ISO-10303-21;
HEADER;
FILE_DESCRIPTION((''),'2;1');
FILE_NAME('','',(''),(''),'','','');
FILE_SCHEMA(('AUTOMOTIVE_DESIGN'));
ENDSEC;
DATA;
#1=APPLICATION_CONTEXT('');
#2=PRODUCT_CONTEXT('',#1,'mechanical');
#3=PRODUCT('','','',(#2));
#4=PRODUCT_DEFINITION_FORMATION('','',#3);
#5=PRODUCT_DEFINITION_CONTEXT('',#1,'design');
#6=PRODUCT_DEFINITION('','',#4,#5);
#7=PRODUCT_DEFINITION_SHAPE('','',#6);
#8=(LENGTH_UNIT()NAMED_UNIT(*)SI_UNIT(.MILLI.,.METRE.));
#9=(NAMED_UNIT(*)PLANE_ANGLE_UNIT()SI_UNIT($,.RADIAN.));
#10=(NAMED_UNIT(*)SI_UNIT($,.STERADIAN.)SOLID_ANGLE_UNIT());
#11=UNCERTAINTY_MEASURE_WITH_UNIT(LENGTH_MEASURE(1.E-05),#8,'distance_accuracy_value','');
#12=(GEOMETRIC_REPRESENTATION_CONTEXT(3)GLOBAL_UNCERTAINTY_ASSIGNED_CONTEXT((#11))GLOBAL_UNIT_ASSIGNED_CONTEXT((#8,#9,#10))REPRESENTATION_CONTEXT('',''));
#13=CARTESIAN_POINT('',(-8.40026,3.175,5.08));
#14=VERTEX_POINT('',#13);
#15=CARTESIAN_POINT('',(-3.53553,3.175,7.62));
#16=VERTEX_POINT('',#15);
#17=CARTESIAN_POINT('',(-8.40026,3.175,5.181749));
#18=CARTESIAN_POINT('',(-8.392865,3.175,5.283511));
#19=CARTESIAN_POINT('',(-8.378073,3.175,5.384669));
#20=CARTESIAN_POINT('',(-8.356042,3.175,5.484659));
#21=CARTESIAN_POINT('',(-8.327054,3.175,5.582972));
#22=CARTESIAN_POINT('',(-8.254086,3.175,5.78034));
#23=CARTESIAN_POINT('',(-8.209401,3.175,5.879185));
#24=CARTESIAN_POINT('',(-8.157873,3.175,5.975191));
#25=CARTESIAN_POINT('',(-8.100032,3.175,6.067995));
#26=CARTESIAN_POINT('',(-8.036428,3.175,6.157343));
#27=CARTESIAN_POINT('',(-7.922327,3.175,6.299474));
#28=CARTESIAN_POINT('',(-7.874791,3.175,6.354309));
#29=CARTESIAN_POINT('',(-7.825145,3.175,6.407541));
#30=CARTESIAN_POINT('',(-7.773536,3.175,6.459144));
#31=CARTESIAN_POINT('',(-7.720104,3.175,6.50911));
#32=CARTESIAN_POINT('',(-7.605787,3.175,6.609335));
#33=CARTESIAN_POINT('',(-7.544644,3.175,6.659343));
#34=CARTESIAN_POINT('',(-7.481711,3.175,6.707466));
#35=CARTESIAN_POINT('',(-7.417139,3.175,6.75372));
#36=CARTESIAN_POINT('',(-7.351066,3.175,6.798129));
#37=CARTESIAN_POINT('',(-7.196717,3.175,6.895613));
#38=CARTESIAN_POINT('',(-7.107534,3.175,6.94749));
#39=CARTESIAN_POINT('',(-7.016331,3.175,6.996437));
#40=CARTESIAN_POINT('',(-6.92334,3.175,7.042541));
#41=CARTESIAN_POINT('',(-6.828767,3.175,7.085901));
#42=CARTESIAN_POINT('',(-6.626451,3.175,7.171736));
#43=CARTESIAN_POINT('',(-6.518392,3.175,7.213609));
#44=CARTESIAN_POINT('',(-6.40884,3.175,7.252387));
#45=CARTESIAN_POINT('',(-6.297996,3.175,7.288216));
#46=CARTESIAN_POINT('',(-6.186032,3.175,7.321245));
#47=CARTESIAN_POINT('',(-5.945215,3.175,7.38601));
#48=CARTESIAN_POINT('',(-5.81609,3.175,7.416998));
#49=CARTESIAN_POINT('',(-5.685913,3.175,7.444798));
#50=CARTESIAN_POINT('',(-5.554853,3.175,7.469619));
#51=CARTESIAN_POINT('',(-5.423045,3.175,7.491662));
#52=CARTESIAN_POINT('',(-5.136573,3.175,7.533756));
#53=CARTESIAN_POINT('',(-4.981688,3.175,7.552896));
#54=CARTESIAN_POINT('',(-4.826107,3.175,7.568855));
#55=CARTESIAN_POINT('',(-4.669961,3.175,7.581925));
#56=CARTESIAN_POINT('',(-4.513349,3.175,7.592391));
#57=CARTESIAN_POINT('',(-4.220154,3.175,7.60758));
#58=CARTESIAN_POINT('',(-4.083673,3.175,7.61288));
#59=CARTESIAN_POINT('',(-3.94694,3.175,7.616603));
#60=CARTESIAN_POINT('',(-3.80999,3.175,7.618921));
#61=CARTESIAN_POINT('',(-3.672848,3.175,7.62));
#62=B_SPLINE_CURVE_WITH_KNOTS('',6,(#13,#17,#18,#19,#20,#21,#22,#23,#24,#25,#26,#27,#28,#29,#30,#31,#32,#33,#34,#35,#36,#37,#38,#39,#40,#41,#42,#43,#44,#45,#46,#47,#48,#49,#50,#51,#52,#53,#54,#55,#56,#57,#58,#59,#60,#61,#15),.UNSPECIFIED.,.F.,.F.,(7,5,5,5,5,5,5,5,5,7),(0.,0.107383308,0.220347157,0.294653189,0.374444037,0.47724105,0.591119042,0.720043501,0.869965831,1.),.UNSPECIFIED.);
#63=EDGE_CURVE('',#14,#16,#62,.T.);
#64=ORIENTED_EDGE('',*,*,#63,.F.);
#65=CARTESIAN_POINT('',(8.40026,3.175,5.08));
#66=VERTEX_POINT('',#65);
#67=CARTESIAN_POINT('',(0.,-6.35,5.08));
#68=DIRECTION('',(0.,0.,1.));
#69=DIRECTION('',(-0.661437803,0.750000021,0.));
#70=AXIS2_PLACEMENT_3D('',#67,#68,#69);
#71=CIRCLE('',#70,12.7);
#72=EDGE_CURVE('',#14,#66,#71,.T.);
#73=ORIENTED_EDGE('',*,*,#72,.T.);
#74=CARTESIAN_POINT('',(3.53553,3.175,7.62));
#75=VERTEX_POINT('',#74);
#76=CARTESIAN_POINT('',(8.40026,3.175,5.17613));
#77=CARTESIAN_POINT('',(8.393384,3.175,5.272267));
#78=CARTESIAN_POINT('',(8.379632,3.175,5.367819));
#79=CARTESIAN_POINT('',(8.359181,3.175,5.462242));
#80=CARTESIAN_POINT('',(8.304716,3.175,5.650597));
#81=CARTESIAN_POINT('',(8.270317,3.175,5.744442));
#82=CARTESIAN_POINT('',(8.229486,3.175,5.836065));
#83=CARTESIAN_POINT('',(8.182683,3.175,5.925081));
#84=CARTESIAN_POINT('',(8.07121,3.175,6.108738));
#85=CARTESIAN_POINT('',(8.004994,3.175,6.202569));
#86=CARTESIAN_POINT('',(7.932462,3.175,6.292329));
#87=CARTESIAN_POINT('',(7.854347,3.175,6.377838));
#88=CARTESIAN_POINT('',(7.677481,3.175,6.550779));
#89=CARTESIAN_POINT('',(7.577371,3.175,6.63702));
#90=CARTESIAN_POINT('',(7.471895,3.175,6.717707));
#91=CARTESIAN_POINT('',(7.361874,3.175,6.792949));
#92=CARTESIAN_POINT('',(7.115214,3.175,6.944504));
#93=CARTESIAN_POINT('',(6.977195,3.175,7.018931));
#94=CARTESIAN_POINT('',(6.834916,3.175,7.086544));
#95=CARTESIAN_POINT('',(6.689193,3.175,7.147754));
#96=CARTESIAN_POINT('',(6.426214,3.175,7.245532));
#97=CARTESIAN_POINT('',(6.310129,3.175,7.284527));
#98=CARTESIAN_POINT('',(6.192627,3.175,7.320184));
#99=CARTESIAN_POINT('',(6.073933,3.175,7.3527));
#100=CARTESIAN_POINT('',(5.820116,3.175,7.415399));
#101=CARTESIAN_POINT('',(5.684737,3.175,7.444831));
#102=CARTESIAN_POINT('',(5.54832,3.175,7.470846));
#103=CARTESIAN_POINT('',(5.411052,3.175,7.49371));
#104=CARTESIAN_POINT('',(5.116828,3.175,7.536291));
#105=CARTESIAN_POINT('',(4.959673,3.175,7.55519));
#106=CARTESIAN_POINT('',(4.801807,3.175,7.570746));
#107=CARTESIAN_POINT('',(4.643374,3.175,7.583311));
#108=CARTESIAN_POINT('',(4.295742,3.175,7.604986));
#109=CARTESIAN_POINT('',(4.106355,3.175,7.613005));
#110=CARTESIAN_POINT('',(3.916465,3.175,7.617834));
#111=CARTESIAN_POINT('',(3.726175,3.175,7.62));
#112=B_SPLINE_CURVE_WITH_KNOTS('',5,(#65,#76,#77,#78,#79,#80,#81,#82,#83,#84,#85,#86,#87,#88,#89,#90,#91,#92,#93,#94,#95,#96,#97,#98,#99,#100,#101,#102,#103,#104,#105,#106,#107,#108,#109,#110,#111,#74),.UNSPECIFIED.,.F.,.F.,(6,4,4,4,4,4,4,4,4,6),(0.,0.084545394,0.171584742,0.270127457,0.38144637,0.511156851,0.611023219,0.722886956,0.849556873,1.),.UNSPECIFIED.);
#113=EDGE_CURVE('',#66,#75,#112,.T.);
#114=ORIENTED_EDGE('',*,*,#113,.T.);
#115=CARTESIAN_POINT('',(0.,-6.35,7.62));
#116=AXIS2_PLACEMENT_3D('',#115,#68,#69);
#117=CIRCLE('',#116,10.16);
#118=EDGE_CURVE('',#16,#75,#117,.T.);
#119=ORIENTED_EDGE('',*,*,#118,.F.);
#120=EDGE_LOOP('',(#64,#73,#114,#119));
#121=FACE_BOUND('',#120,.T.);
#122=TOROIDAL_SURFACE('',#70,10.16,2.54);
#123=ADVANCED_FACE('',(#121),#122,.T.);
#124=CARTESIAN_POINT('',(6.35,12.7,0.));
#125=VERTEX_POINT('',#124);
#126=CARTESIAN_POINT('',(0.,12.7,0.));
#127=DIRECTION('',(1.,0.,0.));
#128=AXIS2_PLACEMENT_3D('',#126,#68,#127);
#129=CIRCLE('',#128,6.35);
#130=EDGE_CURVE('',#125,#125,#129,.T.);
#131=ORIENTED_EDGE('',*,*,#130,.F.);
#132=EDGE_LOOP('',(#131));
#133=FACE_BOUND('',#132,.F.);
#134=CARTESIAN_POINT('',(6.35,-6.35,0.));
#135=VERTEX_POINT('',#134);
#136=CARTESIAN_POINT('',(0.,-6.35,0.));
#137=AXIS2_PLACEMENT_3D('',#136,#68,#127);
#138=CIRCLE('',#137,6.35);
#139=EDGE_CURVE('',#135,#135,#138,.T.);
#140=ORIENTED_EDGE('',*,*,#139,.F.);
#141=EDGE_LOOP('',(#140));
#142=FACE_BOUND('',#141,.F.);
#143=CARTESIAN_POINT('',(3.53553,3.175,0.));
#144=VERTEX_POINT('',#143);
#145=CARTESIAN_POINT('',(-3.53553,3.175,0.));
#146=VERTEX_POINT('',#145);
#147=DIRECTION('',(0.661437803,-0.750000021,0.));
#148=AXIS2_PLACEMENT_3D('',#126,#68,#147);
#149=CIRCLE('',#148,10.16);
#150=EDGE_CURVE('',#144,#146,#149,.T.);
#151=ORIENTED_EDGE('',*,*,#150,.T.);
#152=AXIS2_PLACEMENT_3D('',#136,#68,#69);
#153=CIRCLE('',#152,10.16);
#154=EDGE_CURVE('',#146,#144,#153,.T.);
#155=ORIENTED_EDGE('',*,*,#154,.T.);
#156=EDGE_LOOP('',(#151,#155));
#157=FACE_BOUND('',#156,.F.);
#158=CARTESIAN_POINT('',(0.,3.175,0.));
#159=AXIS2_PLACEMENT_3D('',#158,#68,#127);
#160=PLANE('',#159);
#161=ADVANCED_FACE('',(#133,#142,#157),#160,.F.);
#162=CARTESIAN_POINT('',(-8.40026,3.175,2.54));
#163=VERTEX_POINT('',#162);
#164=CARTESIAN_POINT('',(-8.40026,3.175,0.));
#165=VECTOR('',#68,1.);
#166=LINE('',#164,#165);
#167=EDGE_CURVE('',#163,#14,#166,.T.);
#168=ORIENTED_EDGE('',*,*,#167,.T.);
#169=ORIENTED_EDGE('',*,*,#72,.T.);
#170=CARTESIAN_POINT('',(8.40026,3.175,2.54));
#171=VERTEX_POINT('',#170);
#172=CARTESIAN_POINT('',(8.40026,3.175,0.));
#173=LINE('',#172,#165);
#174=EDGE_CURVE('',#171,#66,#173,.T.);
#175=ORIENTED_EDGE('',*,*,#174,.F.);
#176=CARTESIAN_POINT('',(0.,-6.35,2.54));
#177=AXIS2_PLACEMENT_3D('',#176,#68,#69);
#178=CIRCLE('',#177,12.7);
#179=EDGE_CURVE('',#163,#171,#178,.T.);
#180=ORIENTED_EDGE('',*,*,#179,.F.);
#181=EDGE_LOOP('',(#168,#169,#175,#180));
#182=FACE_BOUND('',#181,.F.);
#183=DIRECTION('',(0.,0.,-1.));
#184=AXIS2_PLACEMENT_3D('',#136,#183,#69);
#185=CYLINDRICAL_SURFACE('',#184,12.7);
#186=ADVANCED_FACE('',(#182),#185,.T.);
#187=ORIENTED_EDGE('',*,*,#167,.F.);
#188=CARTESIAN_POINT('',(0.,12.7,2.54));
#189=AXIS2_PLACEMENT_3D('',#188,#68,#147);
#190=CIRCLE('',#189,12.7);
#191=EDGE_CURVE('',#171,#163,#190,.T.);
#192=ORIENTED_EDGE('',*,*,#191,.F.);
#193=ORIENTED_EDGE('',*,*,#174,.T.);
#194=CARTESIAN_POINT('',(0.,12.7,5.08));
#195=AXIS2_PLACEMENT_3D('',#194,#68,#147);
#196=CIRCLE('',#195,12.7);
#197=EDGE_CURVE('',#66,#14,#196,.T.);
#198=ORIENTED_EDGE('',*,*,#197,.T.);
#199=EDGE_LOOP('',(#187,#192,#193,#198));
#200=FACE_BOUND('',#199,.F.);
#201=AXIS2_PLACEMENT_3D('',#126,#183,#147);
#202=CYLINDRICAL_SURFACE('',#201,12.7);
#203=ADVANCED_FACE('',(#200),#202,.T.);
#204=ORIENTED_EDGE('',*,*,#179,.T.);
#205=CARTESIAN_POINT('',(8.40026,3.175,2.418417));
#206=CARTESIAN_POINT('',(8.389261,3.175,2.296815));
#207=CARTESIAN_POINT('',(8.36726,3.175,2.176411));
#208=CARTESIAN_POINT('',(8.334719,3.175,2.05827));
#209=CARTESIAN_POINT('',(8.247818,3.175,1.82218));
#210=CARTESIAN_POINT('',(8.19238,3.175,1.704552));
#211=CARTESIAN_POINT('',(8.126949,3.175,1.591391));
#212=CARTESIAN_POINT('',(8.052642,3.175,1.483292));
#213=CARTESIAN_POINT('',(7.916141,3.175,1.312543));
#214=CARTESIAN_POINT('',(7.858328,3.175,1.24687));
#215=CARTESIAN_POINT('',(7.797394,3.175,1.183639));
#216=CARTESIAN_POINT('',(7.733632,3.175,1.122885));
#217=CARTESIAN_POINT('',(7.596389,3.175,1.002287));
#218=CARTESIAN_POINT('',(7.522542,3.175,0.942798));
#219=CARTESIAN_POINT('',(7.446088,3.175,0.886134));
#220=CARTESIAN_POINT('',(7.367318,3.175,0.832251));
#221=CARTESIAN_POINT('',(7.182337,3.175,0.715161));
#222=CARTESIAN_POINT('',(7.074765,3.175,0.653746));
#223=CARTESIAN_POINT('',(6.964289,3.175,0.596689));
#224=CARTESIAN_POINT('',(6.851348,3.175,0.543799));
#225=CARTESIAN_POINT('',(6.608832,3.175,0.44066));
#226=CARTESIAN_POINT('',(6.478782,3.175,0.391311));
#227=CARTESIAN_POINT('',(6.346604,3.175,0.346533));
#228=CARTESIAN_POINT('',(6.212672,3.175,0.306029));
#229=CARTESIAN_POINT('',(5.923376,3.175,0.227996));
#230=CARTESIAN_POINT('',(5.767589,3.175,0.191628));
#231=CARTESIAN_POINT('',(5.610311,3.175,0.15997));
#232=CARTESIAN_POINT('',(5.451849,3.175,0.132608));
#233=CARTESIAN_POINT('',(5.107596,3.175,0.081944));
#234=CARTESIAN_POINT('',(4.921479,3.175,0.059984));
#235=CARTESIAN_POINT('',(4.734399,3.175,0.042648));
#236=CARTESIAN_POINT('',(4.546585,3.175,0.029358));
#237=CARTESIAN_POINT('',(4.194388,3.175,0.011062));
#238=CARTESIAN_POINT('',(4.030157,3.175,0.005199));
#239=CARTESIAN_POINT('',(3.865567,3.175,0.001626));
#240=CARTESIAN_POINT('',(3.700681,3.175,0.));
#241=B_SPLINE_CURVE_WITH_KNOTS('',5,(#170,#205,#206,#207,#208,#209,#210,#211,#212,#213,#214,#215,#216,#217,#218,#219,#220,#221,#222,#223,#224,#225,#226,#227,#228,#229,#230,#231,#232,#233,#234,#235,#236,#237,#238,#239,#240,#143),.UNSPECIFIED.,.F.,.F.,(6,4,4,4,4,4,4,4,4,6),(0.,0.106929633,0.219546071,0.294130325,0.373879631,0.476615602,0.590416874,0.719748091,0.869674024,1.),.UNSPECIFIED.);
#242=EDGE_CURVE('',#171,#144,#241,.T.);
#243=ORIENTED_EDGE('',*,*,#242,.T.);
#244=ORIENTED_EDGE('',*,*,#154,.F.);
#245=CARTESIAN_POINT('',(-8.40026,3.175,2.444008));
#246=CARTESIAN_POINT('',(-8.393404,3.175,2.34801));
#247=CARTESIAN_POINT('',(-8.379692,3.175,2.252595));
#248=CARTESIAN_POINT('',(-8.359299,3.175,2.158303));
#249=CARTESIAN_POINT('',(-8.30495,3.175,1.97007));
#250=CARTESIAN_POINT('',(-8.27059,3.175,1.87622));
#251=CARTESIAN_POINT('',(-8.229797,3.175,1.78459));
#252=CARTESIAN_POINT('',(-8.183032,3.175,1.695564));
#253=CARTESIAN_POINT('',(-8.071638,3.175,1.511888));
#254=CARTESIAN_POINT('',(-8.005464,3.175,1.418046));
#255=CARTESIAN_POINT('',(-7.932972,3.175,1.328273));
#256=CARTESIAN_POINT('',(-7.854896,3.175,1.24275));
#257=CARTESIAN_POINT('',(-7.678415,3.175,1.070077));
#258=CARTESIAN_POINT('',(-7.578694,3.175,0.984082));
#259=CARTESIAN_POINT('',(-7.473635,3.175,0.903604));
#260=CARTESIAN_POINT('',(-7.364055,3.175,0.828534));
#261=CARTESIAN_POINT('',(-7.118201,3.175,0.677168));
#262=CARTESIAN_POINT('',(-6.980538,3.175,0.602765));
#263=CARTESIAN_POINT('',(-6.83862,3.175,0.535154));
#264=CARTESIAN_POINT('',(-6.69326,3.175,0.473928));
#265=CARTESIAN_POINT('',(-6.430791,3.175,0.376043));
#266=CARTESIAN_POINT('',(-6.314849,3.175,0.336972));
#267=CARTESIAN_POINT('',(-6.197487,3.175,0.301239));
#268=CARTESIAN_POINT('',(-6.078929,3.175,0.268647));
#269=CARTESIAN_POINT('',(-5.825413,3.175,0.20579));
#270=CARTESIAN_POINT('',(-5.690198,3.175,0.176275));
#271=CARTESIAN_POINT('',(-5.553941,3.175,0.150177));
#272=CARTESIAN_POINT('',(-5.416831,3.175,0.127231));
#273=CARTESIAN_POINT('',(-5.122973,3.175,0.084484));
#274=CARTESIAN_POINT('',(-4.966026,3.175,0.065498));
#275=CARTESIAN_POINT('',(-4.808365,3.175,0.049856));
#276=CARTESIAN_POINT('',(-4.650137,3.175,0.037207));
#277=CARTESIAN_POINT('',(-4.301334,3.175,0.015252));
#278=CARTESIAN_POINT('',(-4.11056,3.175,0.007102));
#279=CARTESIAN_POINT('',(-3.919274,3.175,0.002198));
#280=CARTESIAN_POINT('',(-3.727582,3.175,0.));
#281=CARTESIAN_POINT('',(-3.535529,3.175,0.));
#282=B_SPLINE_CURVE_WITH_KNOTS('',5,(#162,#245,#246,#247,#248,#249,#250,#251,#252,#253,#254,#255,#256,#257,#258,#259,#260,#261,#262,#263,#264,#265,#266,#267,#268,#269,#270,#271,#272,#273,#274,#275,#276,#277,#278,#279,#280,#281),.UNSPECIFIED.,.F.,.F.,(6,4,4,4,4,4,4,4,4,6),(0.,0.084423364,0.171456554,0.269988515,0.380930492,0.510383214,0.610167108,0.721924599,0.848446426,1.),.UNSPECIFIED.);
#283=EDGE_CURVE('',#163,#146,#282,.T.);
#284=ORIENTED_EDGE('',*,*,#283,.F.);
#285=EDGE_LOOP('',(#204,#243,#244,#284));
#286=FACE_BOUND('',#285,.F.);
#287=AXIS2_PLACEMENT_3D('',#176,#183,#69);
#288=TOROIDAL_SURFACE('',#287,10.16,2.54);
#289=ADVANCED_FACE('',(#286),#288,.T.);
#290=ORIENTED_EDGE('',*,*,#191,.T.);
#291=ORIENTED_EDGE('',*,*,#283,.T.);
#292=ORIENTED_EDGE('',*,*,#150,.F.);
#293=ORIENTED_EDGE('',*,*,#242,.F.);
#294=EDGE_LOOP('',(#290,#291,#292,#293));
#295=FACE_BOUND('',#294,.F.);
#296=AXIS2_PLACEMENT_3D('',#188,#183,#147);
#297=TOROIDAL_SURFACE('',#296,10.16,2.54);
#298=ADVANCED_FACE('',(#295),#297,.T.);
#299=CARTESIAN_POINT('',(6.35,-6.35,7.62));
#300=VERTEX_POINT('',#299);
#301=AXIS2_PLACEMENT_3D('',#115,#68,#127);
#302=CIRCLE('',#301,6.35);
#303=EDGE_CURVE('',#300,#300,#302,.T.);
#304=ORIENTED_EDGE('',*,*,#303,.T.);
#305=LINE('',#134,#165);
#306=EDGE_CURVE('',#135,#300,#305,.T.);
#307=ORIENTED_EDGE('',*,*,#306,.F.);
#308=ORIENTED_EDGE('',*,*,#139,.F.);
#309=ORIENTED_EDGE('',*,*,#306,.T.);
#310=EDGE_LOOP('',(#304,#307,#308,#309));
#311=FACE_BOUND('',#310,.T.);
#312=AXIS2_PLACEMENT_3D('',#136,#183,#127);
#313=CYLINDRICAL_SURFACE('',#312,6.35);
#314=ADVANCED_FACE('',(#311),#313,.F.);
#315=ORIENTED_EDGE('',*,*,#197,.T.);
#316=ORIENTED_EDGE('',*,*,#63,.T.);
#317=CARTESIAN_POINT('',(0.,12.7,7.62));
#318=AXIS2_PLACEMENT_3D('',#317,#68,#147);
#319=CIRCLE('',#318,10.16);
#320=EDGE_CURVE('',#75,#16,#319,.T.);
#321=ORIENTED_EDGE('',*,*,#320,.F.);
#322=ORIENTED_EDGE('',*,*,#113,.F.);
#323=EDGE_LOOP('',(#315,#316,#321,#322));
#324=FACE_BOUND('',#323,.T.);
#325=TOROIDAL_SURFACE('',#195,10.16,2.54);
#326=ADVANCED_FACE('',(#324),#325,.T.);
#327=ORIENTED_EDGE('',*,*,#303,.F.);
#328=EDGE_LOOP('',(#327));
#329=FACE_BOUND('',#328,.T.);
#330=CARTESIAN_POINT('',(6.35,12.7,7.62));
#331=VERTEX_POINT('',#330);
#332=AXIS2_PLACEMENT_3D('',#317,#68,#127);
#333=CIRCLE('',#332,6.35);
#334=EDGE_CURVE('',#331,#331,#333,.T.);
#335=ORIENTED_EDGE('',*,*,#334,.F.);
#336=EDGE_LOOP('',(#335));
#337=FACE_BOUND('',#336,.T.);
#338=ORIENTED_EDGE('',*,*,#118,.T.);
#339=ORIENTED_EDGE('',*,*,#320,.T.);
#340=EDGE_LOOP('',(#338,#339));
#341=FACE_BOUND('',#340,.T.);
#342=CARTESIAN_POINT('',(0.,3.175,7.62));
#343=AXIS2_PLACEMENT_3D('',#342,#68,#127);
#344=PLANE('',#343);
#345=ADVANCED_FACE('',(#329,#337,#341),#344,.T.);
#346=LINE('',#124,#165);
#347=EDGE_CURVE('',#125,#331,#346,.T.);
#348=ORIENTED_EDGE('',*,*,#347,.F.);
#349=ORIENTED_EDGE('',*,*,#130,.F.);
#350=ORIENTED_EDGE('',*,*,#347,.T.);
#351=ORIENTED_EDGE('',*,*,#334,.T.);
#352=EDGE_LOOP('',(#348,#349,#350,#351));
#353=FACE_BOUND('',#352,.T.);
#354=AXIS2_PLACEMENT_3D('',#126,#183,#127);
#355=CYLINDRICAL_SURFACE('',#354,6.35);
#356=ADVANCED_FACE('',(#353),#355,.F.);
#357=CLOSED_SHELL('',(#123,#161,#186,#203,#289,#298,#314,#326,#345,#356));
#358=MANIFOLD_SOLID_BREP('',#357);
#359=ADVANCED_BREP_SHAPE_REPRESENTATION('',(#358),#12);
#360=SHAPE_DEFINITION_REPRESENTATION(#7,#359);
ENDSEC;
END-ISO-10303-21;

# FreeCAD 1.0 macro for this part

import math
import FreeCAD as App
import Part
import Sketcher
Q = App.Units.Quantity


def edges_at(feature, points):
    """Names of the edges that pass closest to the given points."""
    edges = feature.Shape.Edges
    near = lambda p: min(range(len(edges)), key=lambda i: edges[i].distToShape(Part.Vertex(*p))[0])
    return sorted({f"Edge{near(p) + 1}" for p in points})

doc = App.newDocument("Part")
body = doc.addObject("PartDesign::Body", "Body")

# Sketch on XY plane
sketch1 = doc.addObject("Sketcher::SketchObject", "Sketch")
body.addObject(sketch1)
sketch1.AttachmentSupport = (doc.XY_Plane, [""])
sketch1.MapMode = "FlatFace"
sketch1.addGeometry(Part.ArcOfCircle(Part.Circle(App.Vector(0, -6, 0), App.Vector(0, 0, 1), 13), math.radians(131), math.radians(409)), False)
sketch1.addGeometry(Part.ArcOfCircle(Part.Circle(App.Vector(0, 13, 0), App.Vector(0, 0, 1), 13), math.radians(-49), math.radians(229)), False)
sketch1.addGeometry(Part.Circle(App.Vector(0, -6, 0), App.Vector(0, 0, 1), 6), False)
sketch1.addGeometry(Part.Circle(App.Vector(0, 13, 0), App.Vector(0, 0, 1), 6), False)
sketch1.addConstraint(Sketcher.Constraint("Coincident", 0, 1, 1, 2))
sketch1.addConstraint(Sketcher.Constraint("Coincident", 1, 1, 0, 2))
sketch1.addConstraint(Sketcher.Constraint("Coincident", 2, 3, 0, 3))
sketch1.addConstraint(Sketcher.Constraint("Coincident", 3, 3, 1, 3))
sketch1.addConstraint(Sketcher.Constraint("Equal", 0, 1))
sketch1.addConstraint(Sketcher.Constraint("Equal", 2, 3))
sketch1.addConstraint(Sketcher.Constraint("Symmetric", 0, 1, 1, 1, -2))
sketch1.addConstraint(Sketcher.Constraint("Diameter", 2, Q("0.5 in")))
sketch1.addConstraint(Sketcher.Constraint("Radius", 0, Q("0.5 in")))
sketch1.addConstraint(Sketcher.Constraint("DistanceY", -1, 1, 1, 3, Q("0.5 in")))
sketch1.addConstraint(Sketcher.Constraint("DistanceY", 0, 3, -1, 1, Q("0.25 in")))
pad1 = doc.addObject("PartDesign::Pad", "Pad")
body.addObject(pad1)
pad1.Profile = sketch1
pad1.Length = Q("0.3 in")
doc.recompute()

fillet = doc.addObject("PartDesign::Fillet", "Fillet")
body.addObject(fillet)
fillet.Base = (pad1, edges_at(pad1, [
    (0, 25.4, 7.62),
    (0, -19.05, 7.62),
    (0, 25.4, 0),
    (0, -19.05, 0),
]))
fillet.Radius = Q("0.1 in")

doc.recompute()
